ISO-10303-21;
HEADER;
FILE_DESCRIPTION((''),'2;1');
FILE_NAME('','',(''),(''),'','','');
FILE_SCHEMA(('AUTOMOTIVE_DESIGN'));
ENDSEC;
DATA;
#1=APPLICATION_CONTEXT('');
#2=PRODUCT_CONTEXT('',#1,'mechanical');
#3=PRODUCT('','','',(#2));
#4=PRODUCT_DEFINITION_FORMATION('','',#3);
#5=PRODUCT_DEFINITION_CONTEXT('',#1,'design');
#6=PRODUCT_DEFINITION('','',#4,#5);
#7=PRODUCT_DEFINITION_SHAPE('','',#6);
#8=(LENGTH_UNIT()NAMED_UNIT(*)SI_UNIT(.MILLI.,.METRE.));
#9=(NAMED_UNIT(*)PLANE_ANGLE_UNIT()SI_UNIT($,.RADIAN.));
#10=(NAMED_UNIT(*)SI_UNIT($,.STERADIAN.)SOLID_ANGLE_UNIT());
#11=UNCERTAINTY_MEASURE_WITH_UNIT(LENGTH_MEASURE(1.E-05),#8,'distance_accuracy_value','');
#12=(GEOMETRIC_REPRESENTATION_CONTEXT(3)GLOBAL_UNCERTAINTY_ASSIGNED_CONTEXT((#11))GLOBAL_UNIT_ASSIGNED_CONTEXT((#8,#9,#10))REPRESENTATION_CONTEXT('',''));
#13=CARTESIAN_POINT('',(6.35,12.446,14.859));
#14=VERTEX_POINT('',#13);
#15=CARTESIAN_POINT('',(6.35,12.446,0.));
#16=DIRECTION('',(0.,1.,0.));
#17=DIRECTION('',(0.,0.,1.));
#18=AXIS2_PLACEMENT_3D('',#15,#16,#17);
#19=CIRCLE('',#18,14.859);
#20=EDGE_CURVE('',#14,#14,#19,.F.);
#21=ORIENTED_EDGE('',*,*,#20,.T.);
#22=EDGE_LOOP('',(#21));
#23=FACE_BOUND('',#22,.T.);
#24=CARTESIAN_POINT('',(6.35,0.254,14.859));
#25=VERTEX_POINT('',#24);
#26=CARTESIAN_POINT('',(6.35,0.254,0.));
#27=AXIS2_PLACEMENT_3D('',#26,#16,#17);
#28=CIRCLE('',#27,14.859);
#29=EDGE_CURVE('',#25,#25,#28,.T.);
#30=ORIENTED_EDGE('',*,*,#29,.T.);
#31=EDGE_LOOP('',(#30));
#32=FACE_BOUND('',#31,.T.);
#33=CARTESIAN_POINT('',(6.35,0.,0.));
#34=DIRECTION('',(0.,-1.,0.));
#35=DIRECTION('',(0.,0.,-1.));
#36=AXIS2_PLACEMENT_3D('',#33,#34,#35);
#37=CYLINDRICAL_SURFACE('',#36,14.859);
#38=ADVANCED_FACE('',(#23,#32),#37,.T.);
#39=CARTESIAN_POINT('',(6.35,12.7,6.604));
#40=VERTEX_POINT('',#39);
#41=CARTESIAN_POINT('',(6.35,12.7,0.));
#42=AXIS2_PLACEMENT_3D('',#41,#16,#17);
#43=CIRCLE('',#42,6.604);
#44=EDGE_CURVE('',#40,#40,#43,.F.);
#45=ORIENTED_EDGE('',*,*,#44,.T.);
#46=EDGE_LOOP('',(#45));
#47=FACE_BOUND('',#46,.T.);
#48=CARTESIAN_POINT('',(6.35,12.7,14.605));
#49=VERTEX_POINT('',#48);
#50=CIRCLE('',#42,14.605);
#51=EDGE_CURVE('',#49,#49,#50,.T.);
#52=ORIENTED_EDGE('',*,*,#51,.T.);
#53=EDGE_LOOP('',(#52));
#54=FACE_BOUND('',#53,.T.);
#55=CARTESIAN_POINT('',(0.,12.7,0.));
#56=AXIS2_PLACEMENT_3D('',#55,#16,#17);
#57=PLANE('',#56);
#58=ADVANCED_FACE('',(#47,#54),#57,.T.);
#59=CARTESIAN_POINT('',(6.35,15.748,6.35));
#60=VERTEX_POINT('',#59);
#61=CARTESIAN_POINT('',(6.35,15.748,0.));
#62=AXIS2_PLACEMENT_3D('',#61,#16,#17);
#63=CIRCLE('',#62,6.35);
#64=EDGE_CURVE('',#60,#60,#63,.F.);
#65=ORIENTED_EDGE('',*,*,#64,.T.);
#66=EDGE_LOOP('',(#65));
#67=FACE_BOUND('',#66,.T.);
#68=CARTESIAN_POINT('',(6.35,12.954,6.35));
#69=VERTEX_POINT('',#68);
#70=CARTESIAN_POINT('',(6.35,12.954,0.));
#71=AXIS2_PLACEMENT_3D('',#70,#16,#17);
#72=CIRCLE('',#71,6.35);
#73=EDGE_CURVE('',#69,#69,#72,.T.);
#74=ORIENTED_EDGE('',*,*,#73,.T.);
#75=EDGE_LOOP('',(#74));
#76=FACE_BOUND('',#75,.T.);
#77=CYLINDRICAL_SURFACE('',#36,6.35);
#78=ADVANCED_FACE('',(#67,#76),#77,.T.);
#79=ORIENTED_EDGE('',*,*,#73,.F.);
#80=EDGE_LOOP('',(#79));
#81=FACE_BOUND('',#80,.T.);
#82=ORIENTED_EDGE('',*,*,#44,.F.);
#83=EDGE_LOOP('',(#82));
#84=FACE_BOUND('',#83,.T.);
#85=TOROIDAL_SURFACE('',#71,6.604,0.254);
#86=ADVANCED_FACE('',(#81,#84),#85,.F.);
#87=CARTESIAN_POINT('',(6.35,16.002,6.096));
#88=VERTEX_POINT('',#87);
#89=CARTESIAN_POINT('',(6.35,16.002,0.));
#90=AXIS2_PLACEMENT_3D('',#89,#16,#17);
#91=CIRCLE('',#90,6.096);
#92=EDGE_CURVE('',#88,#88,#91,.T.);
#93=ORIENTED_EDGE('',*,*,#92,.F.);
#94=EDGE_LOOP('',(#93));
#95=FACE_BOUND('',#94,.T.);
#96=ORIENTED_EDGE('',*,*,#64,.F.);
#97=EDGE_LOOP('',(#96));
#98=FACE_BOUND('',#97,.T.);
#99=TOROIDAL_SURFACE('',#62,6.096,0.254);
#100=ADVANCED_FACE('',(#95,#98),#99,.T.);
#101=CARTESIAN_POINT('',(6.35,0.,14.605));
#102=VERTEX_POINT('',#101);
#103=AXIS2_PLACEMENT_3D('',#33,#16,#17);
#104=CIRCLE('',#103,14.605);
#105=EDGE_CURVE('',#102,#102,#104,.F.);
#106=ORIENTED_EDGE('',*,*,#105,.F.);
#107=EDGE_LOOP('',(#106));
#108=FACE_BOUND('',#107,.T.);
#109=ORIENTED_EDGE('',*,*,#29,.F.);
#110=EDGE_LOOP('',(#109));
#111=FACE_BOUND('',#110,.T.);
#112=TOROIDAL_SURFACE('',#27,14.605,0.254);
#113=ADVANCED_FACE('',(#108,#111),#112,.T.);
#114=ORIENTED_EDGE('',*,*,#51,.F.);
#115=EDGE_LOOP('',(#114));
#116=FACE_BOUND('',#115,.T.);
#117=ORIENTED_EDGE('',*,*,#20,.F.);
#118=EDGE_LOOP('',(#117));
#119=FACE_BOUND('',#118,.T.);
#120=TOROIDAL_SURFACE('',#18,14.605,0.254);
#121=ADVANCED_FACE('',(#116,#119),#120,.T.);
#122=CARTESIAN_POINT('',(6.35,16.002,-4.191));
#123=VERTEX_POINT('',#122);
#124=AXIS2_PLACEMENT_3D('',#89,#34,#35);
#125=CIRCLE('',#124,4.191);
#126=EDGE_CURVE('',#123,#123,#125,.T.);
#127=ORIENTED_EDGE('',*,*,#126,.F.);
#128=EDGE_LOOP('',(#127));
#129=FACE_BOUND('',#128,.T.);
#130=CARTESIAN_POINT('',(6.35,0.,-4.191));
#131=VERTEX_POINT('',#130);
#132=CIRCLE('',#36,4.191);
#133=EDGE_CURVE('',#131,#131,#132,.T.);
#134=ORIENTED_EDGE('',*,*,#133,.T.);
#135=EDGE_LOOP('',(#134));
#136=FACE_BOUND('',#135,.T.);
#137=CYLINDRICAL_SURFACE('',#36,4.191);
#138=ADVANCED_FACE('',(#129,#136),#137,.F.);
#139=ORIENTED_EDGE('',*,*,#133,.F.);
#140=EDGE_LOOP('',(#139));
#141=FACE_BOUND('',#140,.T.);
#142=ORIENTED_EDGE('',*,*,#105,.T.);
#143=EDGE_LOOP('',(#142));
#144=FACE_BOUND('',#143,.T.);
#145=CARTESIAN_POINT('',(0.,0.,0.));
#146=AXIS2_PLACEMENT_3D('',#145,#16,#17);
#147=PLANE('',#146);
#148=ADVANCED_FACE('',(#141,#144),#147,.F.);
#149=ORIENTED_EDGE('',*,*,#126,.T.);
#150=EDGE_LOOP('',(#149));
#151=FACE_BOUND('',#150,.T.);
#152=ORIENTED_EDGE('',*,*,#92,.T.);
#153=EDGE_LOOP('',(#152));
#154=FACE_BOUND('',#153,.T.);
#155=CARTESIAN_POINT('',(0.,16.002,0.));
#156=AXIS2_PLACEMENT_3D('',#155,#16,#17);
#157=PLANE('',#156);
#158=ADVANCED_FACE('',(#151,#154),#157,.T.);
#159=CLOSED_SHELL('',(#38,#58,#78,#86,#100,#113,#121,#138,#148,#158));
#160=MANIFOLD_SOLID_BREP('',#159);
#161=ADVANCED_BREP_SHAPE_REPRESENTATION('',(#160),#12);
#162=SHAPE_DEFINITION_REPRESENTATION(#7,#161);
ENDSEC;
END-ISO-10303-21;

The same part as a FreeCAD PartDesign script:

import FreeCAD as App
import Part
import Sketcher
from FreeCAD import Vector
Q = App.Units.Quantity


def edges_at(feature, points):
    """Names of the edges that pass closest to the given points."""
    edges = feature.Shape.Edges
    near = lambda p: min(range(len(edges)), key=lambda i: edges[i].distToShape(Part.Vertex(*p))[0])
    return sorted({f"Edge{near(p) + 1}" for p in points})


def add_polygon(sketch, points):
    """Adds a closed chain of lines whose ends are joined by coincident constraints."""
    first, n = sketch.GeometryCount, len(points)
    for a, b in zip(points, points[1:] + points[:1]):
        sketch.addGeometry(Part.LineSegment(App.Vector(*a, 0), App.Vector(*b, 0)), False)
    for i in range(n):
        sketch.addConstraint(Sketcher.Constraint("Coincident", first + i, 2, first + (i + 1) % n, 1))

doc = App.newDocument("Part")
body = doc.addObject("PartDesign::Body", "Body")

# Sketch on XY plane
sketch1 = body.newObject("Sketcher::SketchObject", "Sketch")
sketch1.AttachmentSupport = (doc.getObject("XY_Plane"), [""])
sketch1.MapMode = "FlatFace"
add_polygon(sketch1, [(2.2, 0), (2.2, 16), (0, 16), (0, 12.7), (-8.5, 12.7), (-8.5, 0)])  # lines 0-5
sketch1.addGeometry(Part.LineSegment(Vector(6.3, 0, 0), Vector(6.3, 16, 0)), True)  # axis
sketch1.addConstraint(Sketcher.Constraint("Vertical", 0))
sketch1.addConstraint(Sketcher.Constraint("Horizontal", 1))
sketch1.addConstraint(Sketcher.Constraint("Vertical", 2))
sketch1.addConstraint(Sketcher.Constraint("Horizontal", 3))
sketch1.addConstraint(Sketcher.Constraint("Vertical", 4))
sketch1.addConstraint(Sketcher.Constraint("Horizontal", 5))
sketch1.addConstraint(Sketcher.Constraint("Vertical", 6))
sketch1.addConstraint(Sketcher.Constraint("PointOnObject", 1, 2, -2))
sketch1.addConstraint(Sketcher.Constraint("PointOnObject", 4, 2, -1))
sketch1.addConstraint(Sketcher.Constraint("PointOnObject", 6, 1, -1))
sketch1.addConstraint(Sketcher.Constraint("Horizontal", 1, 2, 6, 2))
sketch1.addConstraint(Sketcher.Constraint("DistanceY", 4, 2, 4, 1, Q("0.5 in")))
sketch1.addConstraint(Sketcher.Constraint("DistanceX", 5, 1, 5, 2, Q("0.42 in")))
sketch1.addConstraint(Sketcher.Constraint("DistanceY", 0, 1, 0, 2, Q("0.63 in")))
sketch1.addConstraint(Sketcher.Constraint("DistanceX", 1, 2, 1, 1, Q("0.085 in")))
sketch1.addConstraint(Sketcher.Constraint("DistanceX", -1, 1, 6, 1, Q("0.25 in")))
revolution = body.newObject("PartDesign::Revolution", "Revolution")
revolution.Profile = sketch1
revolution.ReferenceAxis = (sketch1, ["Axis0"])
revolution.Angle = 360
doc.recompute()

fillet = body.newObject("PartDesign::Fillet", "Fillet")
fillet.Base = (revolution, edges_at(revolution, [
    (6.35, 0, 14.859),
    (6.35, 12.7, 14.859),
    (6.35, 12.7, 6.35),
    (6.35, 16.002, 6.35),
]))
fillet.Radius = Q("0.01 in")

doc.recompute()
